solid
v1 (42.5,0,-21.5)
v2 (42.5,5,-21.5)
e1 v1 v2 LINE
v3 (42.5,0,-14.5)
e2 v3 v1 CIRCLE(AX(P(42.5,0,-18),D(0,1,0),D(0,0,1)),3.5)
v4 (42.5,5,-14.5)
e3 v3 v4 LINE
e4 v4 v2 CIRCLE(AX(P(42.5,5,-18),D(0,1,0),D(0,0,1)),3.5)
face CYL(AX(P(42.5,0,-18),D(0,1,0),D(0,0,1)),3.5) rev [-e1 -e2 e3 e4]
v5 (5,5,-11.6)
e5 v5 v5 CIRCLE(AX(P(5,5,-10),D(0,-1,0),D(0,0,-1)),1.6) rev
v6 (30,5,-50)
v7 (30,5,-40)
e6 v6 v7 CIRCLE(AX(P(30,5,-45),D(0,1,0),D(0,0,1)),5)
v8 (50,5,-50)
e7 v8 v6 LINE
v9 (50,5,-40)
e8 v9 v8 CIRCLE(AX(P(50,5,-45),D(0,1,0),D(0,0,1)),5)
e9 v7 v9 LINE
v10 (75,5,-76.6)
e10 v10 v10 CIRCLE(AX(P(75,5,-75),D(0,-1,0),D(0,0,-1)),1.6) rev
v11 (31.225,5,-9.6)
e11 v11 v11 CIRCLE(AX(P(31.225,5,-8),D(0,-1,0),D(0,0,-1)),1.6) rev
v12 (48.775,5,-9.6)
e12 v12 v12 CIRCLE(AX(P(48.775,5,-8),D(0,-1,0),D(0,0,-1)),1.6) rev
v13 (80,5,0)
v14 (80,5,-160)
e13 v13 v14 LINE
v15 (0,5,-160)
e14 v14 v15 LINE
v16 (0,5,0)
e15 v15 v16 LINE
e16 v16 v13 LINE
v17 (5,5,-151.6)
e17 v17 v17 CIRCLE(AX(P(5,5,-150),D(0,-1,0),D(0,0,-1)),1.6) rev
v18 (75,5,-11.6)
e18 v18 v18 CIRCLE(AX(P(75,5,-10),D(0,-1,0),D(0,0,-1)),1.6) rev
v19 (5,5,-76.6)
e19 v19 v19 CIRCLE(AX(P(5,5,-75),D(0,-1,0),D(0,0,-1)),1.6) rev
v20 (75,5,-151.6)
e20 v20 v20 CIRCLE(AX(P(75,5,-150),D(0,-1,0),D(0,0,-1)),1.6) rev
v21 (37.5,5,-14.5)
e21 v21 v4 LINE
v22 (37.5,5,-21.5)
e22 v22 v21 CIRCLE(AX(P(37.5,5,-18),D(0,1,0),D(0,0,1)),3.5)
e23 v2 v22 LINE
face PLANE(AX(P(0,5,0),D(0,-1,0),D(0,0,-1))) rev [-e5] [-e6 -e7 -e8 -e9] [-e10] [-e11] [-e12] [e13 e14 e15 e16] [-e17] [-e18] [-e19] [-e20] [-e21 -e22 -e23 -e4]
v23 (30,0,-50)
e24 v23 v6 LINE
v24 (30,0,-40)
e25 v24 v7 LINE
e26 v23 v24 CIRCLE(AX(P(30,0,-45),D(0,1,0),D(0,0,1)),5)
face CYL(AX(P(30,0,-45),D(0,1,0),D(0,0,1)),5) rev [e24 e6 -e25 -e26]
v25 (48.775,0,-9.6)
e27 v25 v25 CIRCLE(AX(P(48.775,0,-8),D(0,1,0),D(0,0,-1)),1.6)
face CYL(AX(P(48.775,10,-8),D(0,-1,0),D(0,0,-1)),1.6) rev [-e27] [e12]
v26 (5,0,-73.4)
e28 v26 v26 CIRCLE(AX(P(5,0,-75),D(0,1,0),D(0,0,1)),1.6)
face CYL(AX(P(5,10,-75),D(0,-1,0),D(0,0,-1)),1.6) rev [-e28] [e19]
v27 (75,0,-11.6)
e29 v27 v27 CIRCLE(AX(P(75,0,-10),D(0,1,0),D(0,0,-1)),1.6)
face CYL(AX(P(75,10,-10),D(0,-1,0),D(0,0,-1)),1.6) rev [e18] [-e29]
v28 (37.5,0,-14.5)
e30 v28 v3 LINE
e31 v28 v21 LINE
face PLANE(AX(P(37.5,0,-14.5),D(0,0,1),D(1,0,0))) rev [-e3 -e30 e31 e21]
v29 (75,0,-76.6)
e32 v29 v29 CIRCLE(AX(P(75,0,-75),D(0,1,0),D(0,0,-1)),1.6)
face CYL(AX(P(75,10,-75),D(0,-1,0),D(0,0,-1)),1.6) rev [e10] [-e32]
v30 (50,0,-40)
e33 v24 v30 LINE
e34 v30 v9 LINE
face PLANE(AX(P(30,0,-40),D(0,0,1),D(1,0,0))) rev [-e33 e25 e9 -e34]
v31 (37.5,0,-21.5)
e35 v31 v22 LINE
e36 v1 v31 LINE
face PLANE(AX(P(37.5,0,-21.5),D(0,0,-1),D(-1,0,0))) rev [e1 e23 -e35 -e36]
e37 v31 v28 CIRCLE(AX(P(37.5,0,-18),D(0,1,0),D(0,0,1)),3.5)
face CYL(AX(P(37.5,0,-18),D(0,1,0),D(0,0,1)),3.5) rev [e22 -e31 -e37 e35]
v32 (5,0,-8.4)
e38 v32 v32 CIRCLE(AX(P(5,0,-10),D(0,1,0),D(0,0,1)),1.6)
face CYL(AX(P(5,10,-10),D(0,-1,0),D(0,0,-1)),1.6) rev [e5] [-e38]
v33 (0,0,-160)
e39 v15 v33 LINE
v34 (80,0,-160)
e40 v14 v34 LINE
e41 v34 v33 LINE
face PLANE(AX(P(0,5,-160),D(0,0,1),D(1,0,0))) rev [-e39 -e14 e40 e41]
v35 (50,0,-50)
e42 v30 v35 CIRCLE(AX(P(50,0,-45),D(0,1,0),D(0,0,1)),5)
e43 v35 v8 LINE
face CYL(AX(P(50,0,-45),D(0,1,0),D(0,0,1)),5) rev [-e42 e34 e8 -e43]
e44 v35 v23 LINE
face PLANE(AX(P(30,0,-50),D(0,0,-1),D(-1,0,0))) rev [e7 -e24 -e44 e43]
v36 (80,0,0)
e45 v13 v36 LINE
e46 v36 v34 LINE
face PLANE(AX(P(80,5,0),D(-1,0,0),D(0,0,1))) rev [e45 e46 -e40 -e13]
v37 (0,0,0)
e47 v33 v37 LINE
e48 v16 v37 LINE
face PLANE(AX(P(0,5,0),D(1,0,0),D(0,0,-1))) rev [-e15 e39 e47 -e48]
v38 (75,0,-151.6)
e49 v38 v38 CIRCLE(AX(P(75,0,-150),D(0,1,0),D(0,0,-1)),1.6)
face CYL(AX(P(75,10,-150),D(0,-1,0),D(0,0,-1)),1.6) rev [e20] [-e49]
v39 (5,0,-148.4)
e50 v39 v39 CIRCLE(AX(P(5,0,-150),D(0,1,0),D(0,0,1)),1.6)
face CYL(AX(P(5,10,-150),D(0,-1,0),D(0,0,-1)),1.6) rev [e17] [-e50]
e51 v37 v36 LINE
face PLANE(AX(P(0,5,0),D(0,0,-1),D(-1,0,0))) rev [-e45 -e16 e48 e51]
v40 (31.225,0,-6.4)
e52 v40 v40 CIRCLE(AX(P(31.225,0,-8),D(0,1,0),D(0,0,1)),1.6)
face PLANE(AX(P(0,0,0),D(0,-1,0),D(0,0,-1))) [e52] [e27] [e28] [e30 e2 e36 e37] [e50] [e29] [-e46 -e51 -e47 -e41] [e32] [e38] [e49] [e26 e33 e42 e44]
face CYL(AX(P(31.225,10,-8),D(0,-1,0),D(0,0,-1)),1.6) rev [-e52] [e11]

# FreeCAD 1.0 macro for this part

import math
import FreeCAD as App
import Part
import Sketcher

doc = App.newDocument("Part")
body = doc.addObject("PartDesign::Body", "Body")

sketch1 = body.newObject("Sketcher::SketchObject", "Sketch")
sketch1.AttachmentSupport = (doc.getObject("XZ_Plane"), [""])
sketch1.MapMode = "FlatFace"
sketch1.addGeometry([
    Part.LineSegment(App.Vector(0, -160, 0), App.Vector(0, 0, 0)),
    Part.LineSegment(App.Vector(0, 0, 0), App.Vector(80, 0, 0)),
    Part.LineSegment(App.Vector(80, 0, 0), App.Vector(80, -160, 0)),
    Part.LineSegment(App.Vector(80, -160, 0), App.Vector(0, -160, 0)),
], False)
sketch1.addConstraint([
    Sketcher.Constraint("Coincident", 0, 2, 1, 1),
    Sketcher.Constraint("Coincident", 1, 2, 2, 1),
    Sketcher.Constraint("Coincident", 2, 2, 3, 1),
    Sketcher.Constraint("Coincident", 3, 2, 0, 1),
    Sketcher.Constraint("Vertical", 0),
    Sketcher.Constraint("Horizontal", 1),
    Sketcher.Constraint("Vertical", 2),
    Sketcher.Constraint("Horizontal", 3),
    Sketcher.Constraint("Coincident", 0, 2, -1, 1),
    Sketcher.Constraint("DistanceX", 1, 1, 1, 2, 80.0),
    Sketcher.Constraint("DistanceY", 0, 1, 0, 2, 160.0),
])
pad1 = body.newObject("PartDesign::Pad", "Pad")
pad1.Profile = sketch1
pad1.Length = 5
pad1.Reversed = True

sketch2 = body.newObject("Sketcher::SketchObject", "Sketch001")
sketch2.AttachmentSupport = (doc.getObject("XZ_Plane"), [""])
sketch2.MapMode = "FlatFace"
sketch2.addGeometry([
    Part.Circle(App.Vector(5, -150, 0), App.Vector(0, 0, 1), 1.6),
    Part.Circle(App.Vector(5, -75, 0), App.Vector(0, 0, 1), 1.6),
    Part.Circle(App.Vector(5, -10, 0), App.Vector(0, 0, 1), 1.6),
    Part.Circle(App.Vector(75, -10, 0), App.Vector(0, 0, 1), 1.6),
    Part.Circle(App.Vector(75, -75, 0), App.Vector(0, 0, 1), 1.6),
    Part.Circle(App.Vector(75, -150, 0), App.Vector(0, 0, 1), 1.6),
], False)
sketch2.addConstraint([
    Sketcher.Constraint("Equal", 0, 1),
    Sketcher.Constraint("Equal", 1, 2),
    Sketcher.Constraint("Equal", 2, 3),
    Sketcher.Constraint("Equal", 3, 4),
    Sketcher.Constraint("Equal", 4, 5),
    Sketcher.Constraint("Horizontal", 2, 3, 3, 3),
    Sketcher.Constraint("Horizontal", 1, 3, 4, 3),
    Sketcher.Constraint("Horizontal", 0, 3, 5, 3),
    Sketcher.Constraint("Vertical", 0, 3, 1, 3),
    Sketcher.Constraint("Vertical", 1, 3, 2, 3),
    Sketcher.Constraint("Vertical", 3, 3, 4, 3),
    Sketcher.Constraint("Vertical", 4, 3, 5, 3),
    Sketcher.Constraint("Diameter", 0, 3.2),
    Sketcher.Constraint("DistanceX", -1, 1, 0, 3, 5.0),
    Sketcher.Constraint("DistanceY", 0, 3, -1, 1, 150.0),
    Sketcher.Constraint("DistanceY", 1, 3, -1, 1, 75.0),
    Sketcher.Constraint("DistanceY", 2, 3, -1, 1, 10.0),
    Sketcher.Constraint("DistanceX", -1, 1, 3, 3, 75.0),
])
pocket1 = body.newObject("PartDesign::Pocket", "Pocket")
pocket1.Profile = sketch2
pocket1.Length = 10

sketch3 = body.newObject("Sketcher::SketchObject", "Sketch002")
sketch3.AttachmentSupport = (doc.getObject("XZ_Plane"), [""])
sketch3.MapMode = "FlatFace"
sketch3.addGeometry([
    Part.Circle(App.Vector(31.225, -8, 0), App.Vector(0, 0, 1), 1.6),
    Part.Circle(App.Vector(48.775, -8, 0), App.Vector(0, 0, 1), 1.6),
], False)
sketch3.addConstraint([
    Sketcher.Constraint("Equal", 0, 1),
    Sketcher.Constraint("Horizontal", 0, 3, 1, 3),
    Sketcher.Constraint("Diameter", 0, 3.2),
    Sketcher.Constraint("DistanceY", 0, 3, -1, 1, 8.0),
    Sketcher.Constraint("DistanceX", 0, 3, 1, 3, 17.55),
    Sketcher.Constraint("DistanceX", -1, 1, 0, 3, 31.225),
])
pocket2 = body.newObject("PartDesign::Pocket", "Pocket001")
pocket2.Profile = sketch3
pocket2.Length = 10

sketch4 = body.newObject("Sketcher::SketchObject", "Sketch003")
sketch4.AttachmentSupport = (doc.getObject("XZ_Plane"), [""])
sketch4.MapMode = "FlatFace"
sketch4.AttachmentOffset = App.Placement(App.Vector(0, 0, -5), App.Rotation())
sketch4.addGeometry([
    Part.LineSegment(App.Vector(42.5, -21.5, 0), App.Vector(37.5, -21.5, 0)),
    Part.ArcOfCircle(Part.Circle(App.Vector(37.5, -18, 0), App.Vector(0, 0, 1), 3.5), math.radians(90), math.radians(270)),
    Part.LineSegment(App.Vector(37.5, -14.5, 0), App.Vector(42.5, -14.5, 0)),
    Part.ArcOfCircle(Part.Circle(App.Vector(42.5, -18, 0), App.Vector(0, 0, 1), 3.5), math.radians(-90), math.radians(90)),
    Part.LineSegment(App.Vector(50, -50, 0), App.Vector(30, -50, 0)),
    Part.ArcOfCircle(Part.Circle(App.Vector(30, -45, 0), App.Vector(0, 0, 1), 5), math.radians(90), math.radians(270)),
    Part.LineSegment(App.Vector(30, -40, 0), App.Vector(50, -40, 0)),
    Part.ArcOfCircle(Part.Circle(App.Vector(50, -45, 0), App.Vector(0, 0, 1), 5), math.radians(-90), math.radians(90)),
], False)
sketch4.addConstraint([
    Sketcher.Constraint("Tangent", 0, 2, 1, 2),
    Sketcher.Constraint("Tangent", 1, 1, 2, 1),
    Sketcher.Constraint("Tangent", 2, 2, 3, 2),
    Sketcher.Constraint("Tangent", 3, 1, 0, 1),
    Sketcher.Constraint("Tangent", 4, 2, 5, 2),
    Sketcher.Constraint("Tangent", 5, 1, 6, 1),
    Sketcher.Constraint("Tangent", 6, 2, 7, 2),
    Sketcher.Constraint("Tangent", 7, 1, 4, 1),
    Sketcher.Constraint("Horizontal", 0),
    Sketcher.Constraint("Horizontal", 2),
    Sketcher.Constraint("Horizontal", 4),
    Sketcher.Constraint("Horizontal", 6),
    Sketcher.Constraint("Radius", 5, 5.0),
    Sketcher.Constraint("Radius", 1, 3.5),
    Sketcher.Constraint("DistanceX", 0, 2, 0, 1, 5.0),
    Sketcher.Constraint("DistanceX", 4, 2, 4, 1, 20.0),
    Sketcher.Constraint("DistanceY", 1, 3, -1, 1, 18.0),
    Sketcher.Constraint("DistanceX", -1, 1, 5, 3, 30.0),
    Sketcher.Constraint("DistanceY", 5, 3, -1, 1, 45.0),
    Sketcher.Constraint("DistanceX", -1, 1, 1, 3, 37.5),
])
pocket3 = body.newObject("PartDesign::Pocket", "Pocket002")
pocket3.Profile = sketch4
pocket3.Type = "ThroughAll"
pocket3.Reversed = True

doc.recompute()
